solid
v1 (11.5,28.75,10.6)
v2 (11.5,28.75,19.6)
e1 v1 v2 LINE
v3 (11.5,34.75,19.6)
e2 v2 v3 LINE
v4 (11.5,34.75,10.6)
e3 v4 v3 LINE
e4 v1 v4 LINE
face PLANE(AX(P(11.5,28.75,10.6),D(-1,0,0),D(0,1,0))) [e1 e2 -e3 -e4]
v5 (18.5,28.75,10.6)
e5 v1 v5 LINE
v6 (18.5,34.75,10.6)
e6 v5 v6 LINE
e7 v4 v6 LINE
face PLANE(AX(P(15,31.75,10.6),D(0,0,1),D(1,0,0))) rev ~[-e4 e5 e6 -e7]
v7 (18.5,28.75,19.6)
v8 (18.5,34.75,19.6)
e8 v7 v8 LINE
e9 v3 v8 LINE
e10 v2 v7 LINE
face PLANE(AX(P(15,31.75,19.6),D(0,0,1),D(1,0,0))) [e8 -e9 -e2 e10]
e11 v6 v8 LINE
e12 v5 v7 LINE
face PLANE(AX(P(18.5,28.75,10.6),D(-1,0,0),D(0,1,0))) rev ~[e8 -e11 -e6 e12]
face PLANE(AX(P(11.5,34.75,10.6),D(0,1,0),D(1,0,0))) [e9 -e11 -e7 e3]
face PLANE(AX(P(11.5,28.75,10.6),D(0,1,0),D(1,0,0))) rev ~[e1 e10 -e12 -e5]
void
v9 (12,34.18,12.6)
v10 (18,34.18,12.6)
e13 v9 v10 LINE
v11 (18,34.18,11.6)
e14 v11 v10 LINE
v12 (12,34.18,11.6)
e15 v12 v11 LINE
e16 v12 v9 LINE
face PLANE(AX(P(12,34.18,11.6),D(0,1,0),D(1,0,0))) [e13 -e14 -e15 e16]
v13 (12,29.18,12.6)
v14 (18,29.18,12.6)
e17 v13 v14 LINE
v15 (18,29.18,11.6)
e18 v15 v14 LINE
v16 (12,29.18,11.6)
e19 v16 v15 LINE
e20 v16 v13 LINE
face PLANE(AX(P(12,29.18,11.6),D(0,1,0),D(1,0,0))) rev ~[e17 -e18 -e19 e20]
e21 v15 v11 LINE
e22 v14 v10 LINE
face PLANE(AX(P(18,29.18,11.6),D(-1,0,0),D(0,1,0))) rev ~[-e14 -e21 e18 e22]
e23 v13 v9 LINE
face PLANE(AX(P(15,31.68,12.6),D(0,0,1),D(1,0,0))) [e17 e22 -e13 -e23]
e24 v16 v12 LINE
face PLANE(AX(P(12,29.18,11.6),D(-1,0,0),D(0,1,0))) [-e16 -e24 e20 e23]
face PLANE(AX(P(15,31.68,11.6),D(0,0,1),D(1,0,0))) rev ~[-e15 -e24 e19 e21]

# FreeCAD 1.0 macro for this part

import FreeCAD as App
import Part
import Sketcher

V = App.Vector
Q = App.Units.Quantity

doc = App.newDocument("Part")
params = doc.addObject("Spreadsheet::Sheet", "Params")
for row, (alias, value) in enumerate([
    ("sketch1_width", "6 mm"),
    ("sketch1_height", "5 mm"),
    ("pad1_length", "1 mm"),
    ("sketch2_width", "7 mm"),
    ("sketch2_height", "6 mm"),
    ("pad2_length", "9 mm"),
], start=1):
    params.set(f"A{row}", alias)
    params.set(f"B{row}", "=" + value)
    params.setAlias(f"B{row}", alias)

body = doc.addObject("PartDesign::Body", "Body")

sketch1 = body.newObject("Sketcher::SketchObject", "Sketch")
sketch1.AttachmentSupport = (doc.getObject("XY_Plane"), [""])
sketch1.MapMode = "FlatFace"
sketch1.AttachmentOffset = App.Placement(V(0, 0, 11.6), App.Rotation())
sketch1.addGeometry(Part.LineSegment(V(12, 34, 0), V(12, 29, 0)), False)
sketch1.addGeometry(Part.LineSegment(V(12, 29, 0), V(18, 29, 0)), False)
sketch1.addGeometry(Part.LineSegment(V(18, 29, 0), V(18, 34, 0)), False)
sketch1.addGeometry(Part.LineSegment(V(18, 34, 0), V(12, 34, 0)), False)
sketch1.addConstraint(Sketcher.Constraint("Coincident", 0, 2, 1, 1))
sketch1.addConstraint(Sketcher.Constraint("Coincident", 1, 2, 2, 1))
sketch1.addConstraint(Sketcher.Constraint("Coincident", 2, 2, 3, 1))
sketch1.addConstraint(Sketcher.Constraint("Coincident", 3, 2, 0, 1))
sketch1.addConstraint(Sketcher.Constraint("Vertical", 0))
sketch1.addConstraint(Sketcher.Constraint("Horizontal", 1))
sketch1.addConstraint(Sketcher.Constraint("Vertical", 2))
sketch1.addConstraint(Sketcher.Constraint("Horizontal", 3))
sketch1.addConstraint(Sketcher.Constraint("DistanceX", 1, 1, 1, 2, Q("6 mm")))
sketch1.addConstraint(Sketcher.Constraint("DistanceY", 0, 2, 0, 1, Q("5 mm")))
sketch1.addConstraint(Sketcher.Constraint("DistanceX", -1, 1, 0, 2, Q("12 mm")))
sketch1.addConstraint(Sketcher.Constraint("DistanceY", -1, 1, 0, 2, Q("29.18 mm")))
sketch1.setExpression("Constraints[8]", "Params.sketch1_width")
sketch1.setExpression("Constraints[9]", "Params.sketch1_height")
pad1 = body.newObject("PartDesign::Pad", "Pad")
pad1.Profile = sketch1
pad1.setExpression("Length", "Params.pad1_length")
body2 = doc.addObject("PartDesign::Body", "Body001")

sketch2 = body2.newObject("Sketcher::SketchObject", "Sketch001")
sketch2.AttachmentSupport = (doc.getObject("XY_Plane001"), [""])
sketch2.MapMode = "FlatFace"
sketch2.AttachmentOffset = App.Placement(V(0, 0, 10.6), App.Rotation())
sketch2.addGeometry(Part.LineSegment(V(12, 35, 0), V(12, 29, 0)), False)
sketch2.addGeometry(Part.LineSegment(V(12, 29, 0), V(18, 29, 0)), False)
sketch2.addGeometry(Part.LineSegment(V(18, 29, 0), V(18, 35, 0)), False)
sketch2.addGeometry(Part.LineSegment(V(18, 35, 0), V(12, 35, 0)), False)
sketch2.addConstraint(Sketcher.Constraint("Coincident", 0, 2, 1, 1))
sketch2.addConstraint(Sketcher.Constraint("Coincident", 1, 2, 2, 1))
sketch2.addConstraint(Sketcher.Constraint("Coincident", 2, 2, 3, 1))
sketch2.addConstraint(Sketcher.Constraint("Coincident", 3, 2, 0, 1))
sketch2.addConstraint(Sketcher.Constraint("Vertical", 0))
sketch2.addConstraint(Sketcher.Constraint("Horizontal", 1))
sketch2.addConstraint(Sketcher.Constraint("Vertical", 2))
sketch2.addConstraint(Sketcher.Constraint("Horizontal", 3))
sketch2.addConstraint(Sketcher.Constraint("DistanceX", 1, 1, 1, 2, Q("7 mm")))
sketch2.addConstraint(Sketcher.Constraint("DistanceY", 0, 2, 0, 1, Q("6 mm")))
sketch2.addConstraint(Sketcher.Constraint("DistanceX", -1, 1, 0, 2, Q("11.5 mm")))
sketch2.addConstraint(Sketcher.Constraint("DistanceY", -1, 1, 0, 2, Q("28.75 mm")))
sketch2.setExpression("Constraints[8]", "Params.sketch2_width")
sketch2.setExpression("Constraints[9]", "Params.sketch2_height")
pad2 = body2.newObject("PartDesign::Pad", "Pad001")
pad2.Profile = sketch2
pad2.setExpression("Length", "Params.pad2_length")
doc.recompute()

boolean = body2.newObject("PartDesign::Boolean", "Boolean")
boolean.Type = "Cut"
boolean.addObjects([body])

doc.recompute()
